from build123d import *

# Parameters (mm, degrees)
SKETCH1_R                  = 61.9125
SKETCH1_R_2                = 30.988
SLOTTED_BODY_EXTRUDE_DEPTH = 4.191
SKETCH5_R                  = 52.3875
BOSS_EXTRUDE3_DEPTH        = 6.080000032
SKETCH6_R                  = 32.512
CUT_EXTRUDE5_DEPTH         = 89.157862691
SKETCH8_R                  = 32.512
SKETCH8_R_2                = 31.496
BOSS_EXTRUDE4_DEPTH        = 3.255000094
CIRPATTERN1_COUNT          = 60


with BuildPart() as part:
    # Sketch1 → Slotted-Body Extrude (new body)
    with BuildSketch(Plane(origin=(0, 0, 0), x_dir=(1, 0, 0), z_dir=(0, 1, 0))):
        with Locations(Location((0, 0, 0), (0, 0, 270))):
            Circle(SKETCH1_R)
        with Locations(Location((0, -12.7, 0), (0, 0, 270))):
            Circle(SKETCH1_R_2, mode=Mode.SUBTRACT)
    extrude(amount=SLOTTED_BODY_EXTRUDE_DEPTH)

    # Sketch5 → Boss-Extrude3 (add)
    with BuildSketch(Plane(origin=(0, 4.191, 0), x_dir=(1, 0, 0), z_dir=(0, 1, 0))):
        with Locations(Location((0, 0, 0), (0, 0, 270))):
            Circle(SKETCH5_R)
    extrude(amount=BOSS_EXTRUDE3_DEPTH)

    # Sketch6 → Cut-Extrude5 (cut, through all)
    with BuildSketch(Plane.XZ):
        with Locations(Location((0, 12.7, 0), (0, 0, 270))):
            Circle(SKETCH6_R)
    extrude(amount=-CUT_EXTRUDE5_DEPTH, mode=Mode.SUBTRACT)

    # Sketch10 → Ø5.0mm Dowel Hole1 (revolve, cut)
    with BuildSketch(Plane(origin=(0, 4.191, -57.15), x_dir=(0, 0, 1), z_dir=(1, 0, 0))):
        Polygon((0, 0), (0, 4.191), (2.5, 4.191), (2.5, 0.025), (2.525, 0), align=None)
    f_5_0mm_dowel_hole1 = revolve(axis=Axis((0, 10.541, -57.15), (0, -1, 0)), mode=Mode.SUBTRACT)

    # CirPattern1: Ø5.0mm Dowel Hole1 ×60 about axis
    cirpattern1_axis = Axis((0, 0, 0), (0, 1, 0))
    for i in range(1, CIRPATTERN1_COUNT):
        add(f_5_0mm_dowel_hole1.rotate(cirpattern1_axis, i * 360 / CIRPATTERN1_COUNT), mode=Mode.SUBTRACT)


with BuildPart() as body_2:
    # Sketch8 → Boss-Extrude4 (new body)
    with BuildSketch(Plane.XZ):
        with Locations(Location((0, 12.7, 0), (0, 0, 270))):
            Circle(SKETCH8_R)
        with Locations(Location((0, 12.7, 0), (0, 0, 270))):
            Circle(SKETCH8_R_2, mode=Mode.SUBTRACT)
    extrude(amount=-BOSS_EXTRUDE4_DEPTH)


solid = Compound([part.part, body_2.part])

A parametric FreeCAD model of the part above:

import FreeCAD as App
import Part
import Sketcher
Q = App.Units.Quantity


def add_polygon(sketch, points):
    """Adds a closed chain of lines whose ends are joined by coincident constraints."""
    first, n = sketch.GeometryCount, len(points)
    for a, b in zip(points, points[1:] + points[:1]):
        sketch.addGeometry(Part.LineSegment(App.Vector(*a, 0), App.Vector(*b, 0)), False)
    for i in range(n):
        sketch.addConstraint(Sketcher.Constraint("Coincident", first + i, 2, first + (i + 1) % n, 1))

doc = App.newDocument("Part")
body = doc.addObject("PartDesign::Body", "Body")

# Sketch on XZ plane
sketch1 = doc.addObject("Sketcher::SketchObject", "Sketch")
body.addObject(sketch1)
sketch1.AttachmentSupport = (doc.XZ_Plane, [""])
sketch1.MapMode = "FlatFace"
sketch1.addGeometry([
    Part.Circle(App.Vector(0, 0, 0), App.Vector(0, 0, 1), 62),
    Part.Circle(App.Vector(0, 13, 0), App.Vector(0, 0, 1), 31),
], False)
sketch1.addConstraint([
    Sketcher.Constraint("Coincident", 0, 3, -1, 1),
    Sketcher.Constraint("PointOnObject", 1, 3, -2),
    Sketcher.Constraint("Diameter", 1, Q("2.44 in")),
    Sketcher.Constraint("Diameter", 0, Q("4.875 in")),
    Sketcher.Constraint("DistanceY", -1, 1, 1, 3, Q("0.5 in")),
])
pad1 = doc.addObject("PartDesign::Pad", "Pad")
body.addObject(pad1)
pad1.Profile = sketch1
pad1.Length = Q("0.165 in")
pad1.Reversed = True

# Sketch on XZ plane
sketch2 = doc.addObject("Sketcher::SketchObject", "Sketch001")
body.addObject(sketch2)
sketch2.AttachmentSupport = (doc.XZ_Plane, [""])
sketch2.MapMode = "FlatFace"
sketch2.AttachmentOffset = App.Placement(App.Vector(0, 0, -0.165 * 25.4), App.Rotation())
sketch2.addGeometry(Part.Circle(App.Vector(0, 0, 0), App.Vector(0, 0, 1), 52), False)
sketch2.addConstraint([
    Sketcher.Constraint("Coincident", 0, 3, -1, 1),
    Sketcher.Constraint("Diameter", 0, Q("4.125 in")),
])
pad2 = doc.addObject("PartDesign::Pad", "Pad001")
body.addObject(pad2)
pad2.Profile = sketch2
pad2.Length = 6.08
pad2.Reversed = True

# Sketch on XZ plane
sketch3 = doc.addObject("Sketcher::SketchObject", "Sketch002")
body.addObject(sketch3)
sketch3.AttachmentSupport = (doc.XZ_Plane, [""])
sketch3.MapMode = "FlatFace"
sketch3.addGeometry(Part.Circle(App.Vector(0, 13, 0), App.Vector(0, 0, 1), 33), False)
sketch3.addConstraint([
    Sketcher.Constraint("PointOnObject", 0, 3, -2),
    Sketcher.Constraint("Diameter", 0, Q("2.56 in")),
    Sketcher.Constraint("DistanceY", -1, 1, 0, 3, Q("0.5 in")),
])
pocket1 = doc.addObject("PartDesign::Pocket", "Pocket")
body.addObject(pocket1)
pocket1.Profile = sketch3
pocket1.Type = "ThroughAll"

# Sketch on YZ plane
sketch4 = doc.addObject("Sketcher::SketchObject", "Sketch003")
body.addObject(sketch4)
sketch4.AttachmentSupport = (doc.YZ_Plane, [""])
sketch4.MapMode = "FlatFace"
add_polygon(sketch4, [(0, -57.15), (4.191, -57.15), (4.191, -54.625), (4.166, -54.65), (0, -54.65)])  # lines 0-4
sketch4.addGeometry(Part.LineSegment(App.Vector(4.191, -57.15, 0), App.Vector(0, -57.15, 0)), True)  # axis
sketch4.addConstraint([
    Sketcher.Constraint("Horizontal", 0),
    Sketcher.Constraint("Vertical", 1),
    Sketcher.Constraint("Horizontal", 3),
    Sketcher.Constraint("Vertical", 4),
    Sketcher.Constraint("Horizontal", 5),
    Sketcher.Constraint("Coincident", 5, 1, 0, 2),
    Sketcher.Constraint("PointOnObject", 3, 2, -2),
    Sketcher.Constraint("PointOnObject", 5, 2, -2),
    Sketcher.Constraint("Angle", 2, Q("-135 deg")),
    Sketcher.Constraint("DistanceX", 0, 1, 0, 2, Q("0.165 in")),
    Sketcher.Constraint("DistanceY", 0, 2, -1, 1, Q("2.25 in")),
    Sketcher.Constraint("DistanceX", 3, 2, 3, 1, 4.166),
    Sketcher.Constraint("DistanceY", 1, 1, 1, 2, 2.525),
])
groove = doc.addObject("PartDesign::Groove", "Groove")
body.addObject(groove)
groove.Profile = sketch4
groove.ReferenceAxis = (sketch4, ["Axis0"])
groove.Angle = 360
doc.recompute()

polarpattern = doc.addObject("PartDesign::PolarPattern", "PolarPattern")
body.addObject(polarpattern)
polarpattern.Originals = [groove]
polarpattern.Axis = (doc.Y_Axis, [""])
polarpattern.Angle = 360
polarpattern.Occurrences = 60
body.Tip = polarpattern
body2 = doc.addObject("PartDesign::Body", "Body001")

# Sketch on XZ plane
sketch5 = doc.addObject("Sketcher::SketchObject", "Sketch004")
body2.addObject(sketch5)
sketch5.AttachmentSupport = (doc.getObject("XZ_Plane001"), [""])
sketch5.MapMode = "FlatFace"
sketch5.addGeometry([
    Part.Circle(App.Vector(0, 13, 0), App.Vector(0, 0, 1), 33),
    Part.Circle(App.Vector(0, 13, 0), App.Vector(0, 0, 1), 31),
], False)
sketch5.addConstraint([
    Sketcher.Constraint("Coincident", 1, 3, 0, 3),
    Sketcher.Constraint("PointOnObject", 0, 3, -2),
    Sketcher.Constraint("Diameter", 0, Q("2.56 in")),
    Sketcher.Constraint("Diameter", 1, Q("2.48 in")),
    Sketcher.Constraint("DistanceY", -1, 1, 0, 3, Q("0.5 in")),
])
pad3 = doc.addObject("PartDesign::Pad", "Pad002")
body2.addObject(pad3)
pad3.Profile = sketch5
pad3.Length = 3.255
pad3.Reversed = True

doc.recompute()
